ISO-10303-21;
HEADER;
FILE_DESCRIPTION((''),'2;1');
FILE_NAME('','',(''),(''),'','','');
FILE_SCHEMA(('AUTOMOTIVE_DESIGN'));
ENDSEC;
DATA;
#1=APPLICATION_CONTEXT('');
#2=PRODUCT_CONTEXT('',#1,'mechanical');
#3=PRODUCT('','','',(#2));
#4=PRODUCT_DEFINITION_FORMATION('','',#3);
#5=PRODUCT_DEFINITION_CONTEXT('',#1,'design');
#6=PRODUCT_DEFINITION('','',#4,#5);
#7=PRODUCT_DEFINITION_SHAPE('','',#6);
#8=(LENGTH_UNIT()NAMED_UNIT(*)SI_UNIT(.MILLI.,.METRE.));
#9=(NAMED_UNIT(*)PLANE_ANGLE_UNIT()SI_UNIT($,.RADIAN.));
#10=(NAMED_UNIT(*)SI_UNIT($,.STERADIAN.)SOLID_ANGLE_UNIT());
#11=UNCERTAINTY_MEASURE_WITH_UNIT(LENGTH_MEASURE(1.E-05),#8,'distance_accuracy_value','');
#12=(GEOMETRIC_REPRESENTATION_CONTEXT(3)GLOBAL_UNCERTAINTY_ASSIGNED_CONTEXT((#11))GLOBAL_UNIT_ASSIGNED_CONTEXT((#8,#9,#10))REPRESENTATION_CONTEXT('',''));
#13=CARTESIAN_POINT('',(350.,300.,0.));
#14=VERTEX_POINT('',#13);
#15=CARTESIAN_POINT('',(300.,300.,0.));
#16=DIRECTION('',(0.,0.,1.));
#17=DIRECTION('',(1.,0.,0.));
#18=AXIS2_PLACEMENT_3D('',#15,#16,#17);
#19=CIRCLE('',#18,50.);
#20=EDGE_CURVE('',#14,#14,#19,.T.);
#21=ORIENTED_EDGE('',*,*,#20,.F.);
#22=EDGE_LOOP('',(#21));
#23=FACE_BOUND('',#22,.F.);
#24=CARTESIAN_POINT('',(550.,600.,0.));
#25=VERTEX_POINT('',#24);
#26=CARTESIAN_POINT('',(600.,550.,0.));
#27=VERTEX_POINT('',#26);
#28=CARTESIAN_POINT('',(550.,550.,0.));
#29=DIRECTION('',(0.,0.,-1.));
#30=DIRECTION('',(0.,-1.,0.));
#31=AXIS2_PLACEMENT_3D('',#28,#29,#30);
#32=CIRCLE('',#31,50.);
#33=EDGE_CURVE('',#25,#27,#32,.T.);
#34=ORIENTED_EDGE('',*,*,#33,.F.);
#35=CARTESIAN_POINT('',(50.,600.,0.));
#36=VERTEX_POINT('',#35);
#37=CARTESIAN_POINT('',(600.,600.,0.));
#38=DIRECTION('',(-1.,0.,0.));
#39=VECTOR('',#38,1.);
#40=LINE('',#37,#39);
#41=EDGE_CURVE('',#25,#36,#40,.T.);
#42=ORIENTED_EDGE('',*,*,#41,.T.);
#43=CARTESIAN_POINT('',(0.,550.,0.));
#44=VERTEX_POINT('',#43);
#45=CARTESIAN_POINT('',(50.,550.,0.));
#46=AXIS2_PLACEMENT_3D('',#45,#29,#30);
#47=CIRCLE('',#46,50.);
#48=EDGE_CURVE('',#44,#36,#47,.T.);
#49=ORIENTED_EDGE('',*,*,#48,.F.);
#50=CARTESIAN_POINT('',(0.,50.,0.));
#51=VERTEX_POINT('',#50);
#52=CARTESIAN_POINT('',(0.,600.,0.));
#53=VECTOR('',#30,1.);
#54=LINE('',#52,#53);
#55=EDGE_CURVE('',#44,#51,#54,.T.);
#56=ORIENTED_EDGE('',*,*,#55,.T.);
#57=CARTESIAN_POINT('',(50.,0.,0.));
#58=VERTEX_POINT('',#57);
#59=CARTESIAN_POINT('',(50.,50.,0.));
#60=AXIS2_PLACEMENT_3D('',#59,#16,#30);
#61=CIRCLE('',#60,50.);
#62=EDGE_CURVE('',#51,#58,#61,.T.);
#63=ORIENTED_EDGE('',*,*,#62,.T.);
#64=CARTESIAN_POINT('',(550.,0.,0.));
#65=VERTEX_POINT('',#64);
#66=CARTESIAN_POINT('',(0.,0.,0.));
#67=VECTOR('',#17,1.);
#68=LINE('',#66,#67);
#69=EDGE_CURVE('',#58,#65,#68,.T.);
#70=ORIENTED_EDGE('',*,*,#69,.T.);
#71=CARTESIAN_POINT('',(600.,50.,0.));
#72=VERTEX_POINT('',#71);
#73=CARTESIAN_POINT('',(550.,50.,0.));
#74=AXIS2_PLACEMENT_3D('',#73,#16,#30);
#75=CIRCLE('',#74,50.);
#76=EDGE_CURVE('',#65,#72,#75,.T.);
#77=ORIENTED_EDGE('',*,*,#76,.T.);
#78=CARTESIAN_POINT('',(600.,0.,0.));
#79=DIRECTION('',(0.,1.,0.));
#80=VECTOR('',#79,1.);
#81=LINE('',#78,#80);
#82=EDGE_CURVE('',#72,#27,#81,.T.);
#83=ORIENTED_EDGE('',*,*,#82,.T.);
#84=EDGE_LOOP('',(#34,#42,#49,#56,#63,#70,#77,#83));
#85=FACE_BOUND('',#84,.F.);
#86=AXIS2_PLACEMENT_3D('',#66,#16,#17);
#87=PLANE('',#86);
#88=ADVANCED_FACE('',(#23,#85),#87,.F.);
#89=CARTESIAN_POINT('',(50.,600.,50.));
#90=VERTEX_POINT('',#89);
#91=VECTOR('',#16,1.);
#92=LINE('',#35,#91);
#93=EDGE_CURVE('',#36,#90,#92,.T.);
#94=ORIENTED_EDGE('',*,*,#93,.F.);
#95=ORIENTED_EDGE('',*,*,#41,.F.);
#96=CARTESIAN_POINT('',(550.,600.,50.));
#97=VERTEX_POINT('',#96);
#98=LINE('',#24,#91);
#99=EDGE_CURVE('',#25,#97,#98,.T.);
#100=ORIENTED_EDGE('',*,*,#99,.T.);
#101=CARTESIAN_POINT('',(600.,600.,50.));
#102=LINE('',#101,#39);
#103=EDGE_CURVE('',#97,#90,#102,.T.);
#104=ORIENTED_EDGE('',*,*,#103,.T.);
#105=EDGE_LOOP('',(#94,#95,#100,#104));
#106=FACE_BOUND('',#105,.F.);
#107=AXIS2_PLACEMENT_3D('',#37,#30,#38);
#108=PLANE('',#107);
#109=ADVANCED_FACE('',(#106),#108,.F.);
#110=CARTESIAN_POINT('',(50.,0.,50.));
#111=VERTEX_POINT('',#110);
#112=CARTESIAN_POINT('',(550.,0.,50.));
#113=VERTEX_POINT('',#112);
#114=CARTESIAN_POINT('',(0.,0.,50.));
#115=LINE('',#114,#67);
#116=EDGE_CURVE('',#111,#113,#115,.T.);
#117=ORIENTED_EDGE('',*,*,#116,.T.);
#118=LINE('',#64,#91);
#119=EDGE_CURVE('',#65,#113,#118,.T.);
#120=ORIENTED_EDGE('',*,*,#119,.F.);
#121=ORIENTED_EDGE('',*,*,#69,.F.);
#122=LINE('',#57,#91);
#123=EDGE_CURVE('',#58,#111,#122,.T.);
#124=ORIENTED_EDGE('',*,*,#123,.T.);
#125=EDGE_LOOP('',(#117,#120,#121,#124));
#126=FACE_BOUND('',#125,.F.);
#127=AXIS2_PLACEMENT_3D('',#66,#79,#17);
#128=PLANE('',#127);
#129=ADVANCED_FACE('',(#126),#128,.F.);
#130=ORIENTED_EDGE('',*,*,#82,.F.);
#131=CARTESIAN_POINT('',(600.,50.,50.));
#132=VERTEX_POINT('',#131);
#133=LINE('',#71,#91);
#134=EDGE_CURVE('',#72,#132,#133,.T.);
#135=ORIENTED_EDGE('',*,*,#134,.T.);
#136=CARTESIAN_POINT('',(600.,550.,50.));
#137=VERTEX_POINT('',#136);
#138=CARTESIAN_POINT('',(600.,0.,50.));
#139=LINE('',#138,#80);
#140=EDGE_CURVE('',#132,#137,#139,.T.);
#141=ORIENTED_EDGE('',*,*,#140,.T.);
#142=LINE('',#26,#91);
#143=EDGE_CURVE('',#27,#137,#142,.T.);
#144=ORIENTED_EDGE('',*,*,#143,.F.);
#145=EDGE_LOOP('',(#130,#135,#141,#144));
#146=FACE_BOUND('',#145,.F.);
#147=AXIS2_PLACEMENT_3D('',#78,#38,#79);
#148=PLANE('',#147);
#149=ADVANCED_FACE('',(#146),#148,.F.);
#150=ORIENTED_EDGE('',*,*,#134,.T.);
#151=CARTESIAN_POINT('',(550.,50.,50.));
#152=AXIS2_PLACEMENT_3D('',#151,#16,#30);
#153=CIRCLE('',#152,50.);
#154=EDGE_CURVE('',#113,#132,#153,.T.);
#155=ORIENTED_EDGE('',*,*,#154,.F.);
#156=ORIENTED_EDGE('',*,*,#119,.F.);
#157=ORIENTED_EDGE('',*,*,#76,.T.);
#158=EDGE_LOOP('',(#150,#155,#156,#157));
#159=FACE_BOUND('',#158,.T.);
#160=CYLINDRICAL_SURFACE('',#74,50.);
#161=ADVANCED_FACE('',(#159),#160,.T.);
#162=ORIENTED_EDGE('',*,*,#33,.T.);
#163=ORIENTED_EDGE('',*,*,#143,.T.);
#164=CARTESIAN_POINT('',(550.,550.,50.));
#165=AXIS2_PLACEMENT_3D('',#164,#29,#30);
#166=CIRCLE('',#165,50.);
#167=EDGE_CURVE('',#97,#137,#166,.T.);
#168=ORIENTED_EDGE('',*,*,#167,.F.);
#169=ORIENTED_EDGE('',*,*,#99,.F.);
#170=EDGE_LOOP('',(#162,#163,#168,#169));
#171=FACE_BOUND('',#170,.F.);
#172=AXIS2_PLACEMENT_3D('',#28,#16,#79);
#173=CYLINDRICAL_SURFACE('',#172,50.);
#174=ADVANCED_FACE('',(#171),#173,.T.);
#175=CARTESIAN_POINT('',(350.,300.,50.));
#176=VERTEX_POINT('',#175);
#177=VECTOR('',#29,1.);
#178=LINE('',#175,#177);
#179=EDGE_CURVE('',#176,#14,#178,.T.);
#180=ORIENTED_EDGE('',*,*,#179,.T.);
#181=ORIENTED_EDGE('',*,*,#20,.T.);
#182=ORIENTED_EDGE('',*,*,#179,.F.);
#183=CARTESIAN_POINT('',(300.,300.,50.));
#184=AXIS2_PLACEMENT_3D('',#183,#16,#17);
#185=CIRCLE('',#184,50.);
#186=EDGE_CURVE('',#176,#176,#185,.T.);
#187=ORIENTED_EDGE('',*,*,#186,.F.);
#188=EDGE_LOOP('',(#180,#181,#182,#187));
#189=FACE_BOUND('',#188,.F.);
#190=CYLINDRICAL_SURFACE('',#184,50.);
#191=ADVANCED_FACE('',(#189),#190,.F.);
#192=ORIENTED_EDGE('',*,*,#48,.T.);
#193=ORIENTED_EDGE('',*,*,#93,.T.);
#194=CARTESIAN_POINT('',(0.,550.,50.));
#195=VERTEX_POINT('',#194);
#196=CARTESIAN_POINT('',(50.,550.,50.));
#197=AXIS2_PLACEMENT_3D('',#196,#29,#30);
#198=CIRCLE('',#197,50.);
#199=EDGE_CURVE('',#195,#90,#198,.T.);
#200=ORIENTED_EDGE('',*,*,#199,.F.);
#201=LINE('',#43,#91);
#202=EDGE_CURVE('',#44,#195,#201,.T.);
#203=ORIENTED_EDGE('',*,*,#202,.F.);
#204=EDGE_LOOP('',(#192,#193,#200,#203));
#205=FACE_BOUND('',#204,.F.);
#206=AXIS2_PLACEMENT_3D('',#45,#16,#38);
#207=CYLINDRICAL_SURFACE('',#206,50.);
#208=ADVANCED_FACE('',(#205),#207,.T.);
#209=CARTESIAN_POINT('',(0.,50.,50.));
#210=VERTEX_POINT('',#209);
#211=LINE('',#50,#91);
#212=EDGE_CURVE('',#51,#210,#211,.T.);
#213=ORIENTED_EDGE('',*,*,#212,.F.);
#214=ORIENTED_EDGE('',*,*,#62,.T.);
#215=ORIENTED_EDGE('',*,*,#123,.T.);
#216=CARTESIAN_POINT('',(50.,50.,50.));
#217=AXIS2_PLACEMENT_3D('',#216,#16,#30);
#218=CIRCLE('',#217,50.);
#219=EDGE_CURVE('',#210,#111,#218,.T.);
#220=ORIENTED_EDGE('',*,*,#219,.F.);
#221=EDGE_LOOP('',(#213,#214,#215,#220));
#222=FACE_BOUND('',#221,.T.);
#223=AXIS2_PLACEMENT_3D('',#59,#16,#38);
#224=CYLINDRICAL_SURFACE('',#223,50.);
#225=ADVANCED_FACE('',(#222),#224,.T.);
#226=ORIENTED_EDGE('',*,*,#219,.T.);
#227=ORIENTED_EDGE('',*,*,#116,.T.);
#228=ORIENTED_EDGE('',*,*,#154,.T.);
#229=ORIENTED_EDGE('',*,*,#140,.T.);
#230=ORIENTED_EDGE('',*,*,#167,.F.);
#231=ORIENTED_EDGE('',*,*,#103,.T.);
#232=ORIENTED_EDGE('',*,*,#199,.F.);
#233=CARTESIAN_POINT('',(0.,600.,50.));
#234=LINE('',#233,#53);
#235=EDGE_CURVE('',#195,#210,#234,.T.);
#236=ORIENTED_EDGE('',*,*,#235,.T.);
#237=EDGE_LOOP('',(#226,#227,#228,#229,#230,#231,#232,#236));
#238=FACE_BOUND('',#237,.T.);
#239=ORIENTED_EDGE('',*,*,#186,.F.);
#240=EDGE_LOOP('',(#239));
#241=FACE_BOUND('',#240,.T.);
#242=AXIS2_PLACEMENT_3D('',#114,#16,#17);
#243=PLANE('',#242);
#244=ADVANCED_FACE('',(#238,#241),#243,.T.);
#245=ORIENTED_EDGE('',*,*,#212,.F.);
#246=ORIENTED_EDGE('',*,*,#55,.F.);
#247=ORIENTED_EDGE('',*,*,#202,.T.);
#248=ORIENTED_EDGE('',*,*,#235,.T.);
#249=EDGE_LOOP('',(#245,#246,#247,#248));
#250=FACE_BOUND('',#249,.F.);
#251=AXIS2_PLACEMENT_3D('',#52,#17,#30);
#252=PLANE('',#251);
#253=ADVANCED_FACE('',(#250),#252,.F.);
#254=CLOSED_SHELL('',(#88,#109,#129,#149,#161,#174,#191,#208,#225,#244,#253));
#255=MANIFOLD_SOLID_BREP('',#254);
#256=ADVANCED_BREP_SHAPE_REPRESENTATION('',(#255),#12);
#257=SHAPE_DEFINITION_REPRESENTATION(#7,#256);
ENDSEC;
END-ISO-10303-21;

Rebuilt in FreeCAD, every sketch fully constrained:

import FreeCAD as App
import Part
import Sketcher


def edges_at(feature, points):
    """Names of the edges that pass closest to the given points."""
    edges = feature.Shape.Edges
    near = lambda p: min(range(len(edges)), key=lambda i: edges[i].distToShape(Part.Vertex(*p))[0])
    return sorted({f"Edge{near(p) + 1}" for p in points})

doc = App.newDocument("Part")
body = doc.addObject("PartDesign::Body", "Body")

sketch1 = body.newObject("Sketcher::SketchObject", "Sketch")
sketch1.AttachmentSupport = (doc.getObject("XY_Plane"), [""])
sketch1.MapMode = "FlatFace"
sketch1.addGeometry(Part.LineSegment(App.Vector(0, 600, 0), App.Vector(0, 0, 0)), False)
sketch1.addGeometry(Part.LineSegment(App.Vector(0, 0, 0), App.Vector(600, 0, 0)), False)
sketch1.addGeometry(Part.LineSegment(App.Vector(600, 0, 0), App.Vector(600, 600, 0)), False)
sketch1.addGeometry(Part.LineSegment(App.Vector(600, 600, 0), App.Vector(0, 600, 0)), False)
sketch1.addConstraint(Sketcher.Constraint("Coincident", 0, 2, 1, 1))
sketch1.addConstraint(Sketcher.Constraint("Coincident", 1, 2, 2, 1))
sketch1.addConstraint(Sketcher.Constraint("Coincident", 2, 2, 3, 1))
sketch1.addConstraint(Sketcher.Constraint("Coincident", 3, 2, 0, 1))
sketch1.addConstraint(Sketcher.Constraint("Vertical", 0))
sketch1.addConstraint(Sketcher.Constraint("Horizontal", 1))
sketch1.addConstraint(Sketcher.Constraint("Vertical", 2))
sketch1.addConstraint(Sketcher.Constraint("Horizontal", 3))
sketch1.addConstraint(Sketcher.Constraint("Coincident", 0, 2, -1, 1))
sketch1.addConstraint(Sketcher.Constraint("Equal", 3, 0))
sketch1.addConstraint(Sketcher.Constraint("DistanceX", 1, 1, 1, 2, 600.0))
pad1 = body.newObject("PartDesign::Pad", "Pad")
pad1.Profile = sketch1
pad1.Length = 50
doc.recompute()

fillet = body.newObject("PartDesign::Fillet", "Fillet")
fillet.Base = (pad1, edges_at(pad1, [
    (0, 600, 25),
    (600, 600, 25),
    (600, 0, 25),
    (0, 0, 25),
]))
fillet.Radius = 50

sketch2 = body.newObject("Sketcher::SketchObject", "Sketch001")
sketch2.AttachmentSupport = (doc.getObject("XY_Plane"), [""])
sketch2.MapMode = "FlatFace"
sketch2.AttachmentOffset = App.Placement(App.Vector(0, 0, 50), App.Rotation())
sketch2.addGeometry(Part.Circle(App.Vector(300, 300, 0), App.Vector(0, 0, 1), 50), False)
sketch2.addConstraint(Sketcher.Constraint("Diameter", 0, 100.0))
sketch2.addConstraint(Sketcher.Constraint("DistanceX", -1, 1, 0, 3, 300.0))
sketch2.addConstraint(Sketcher.Constraint("DistanceY", -1, 1, 0, 3, 300.0))
pocket1 = body.newObject("PartDesign::Pocket", "Pocket")
pocket1.Profile = sketch2
pocket1.Type = "ThroughAll"

doc.recompute()
